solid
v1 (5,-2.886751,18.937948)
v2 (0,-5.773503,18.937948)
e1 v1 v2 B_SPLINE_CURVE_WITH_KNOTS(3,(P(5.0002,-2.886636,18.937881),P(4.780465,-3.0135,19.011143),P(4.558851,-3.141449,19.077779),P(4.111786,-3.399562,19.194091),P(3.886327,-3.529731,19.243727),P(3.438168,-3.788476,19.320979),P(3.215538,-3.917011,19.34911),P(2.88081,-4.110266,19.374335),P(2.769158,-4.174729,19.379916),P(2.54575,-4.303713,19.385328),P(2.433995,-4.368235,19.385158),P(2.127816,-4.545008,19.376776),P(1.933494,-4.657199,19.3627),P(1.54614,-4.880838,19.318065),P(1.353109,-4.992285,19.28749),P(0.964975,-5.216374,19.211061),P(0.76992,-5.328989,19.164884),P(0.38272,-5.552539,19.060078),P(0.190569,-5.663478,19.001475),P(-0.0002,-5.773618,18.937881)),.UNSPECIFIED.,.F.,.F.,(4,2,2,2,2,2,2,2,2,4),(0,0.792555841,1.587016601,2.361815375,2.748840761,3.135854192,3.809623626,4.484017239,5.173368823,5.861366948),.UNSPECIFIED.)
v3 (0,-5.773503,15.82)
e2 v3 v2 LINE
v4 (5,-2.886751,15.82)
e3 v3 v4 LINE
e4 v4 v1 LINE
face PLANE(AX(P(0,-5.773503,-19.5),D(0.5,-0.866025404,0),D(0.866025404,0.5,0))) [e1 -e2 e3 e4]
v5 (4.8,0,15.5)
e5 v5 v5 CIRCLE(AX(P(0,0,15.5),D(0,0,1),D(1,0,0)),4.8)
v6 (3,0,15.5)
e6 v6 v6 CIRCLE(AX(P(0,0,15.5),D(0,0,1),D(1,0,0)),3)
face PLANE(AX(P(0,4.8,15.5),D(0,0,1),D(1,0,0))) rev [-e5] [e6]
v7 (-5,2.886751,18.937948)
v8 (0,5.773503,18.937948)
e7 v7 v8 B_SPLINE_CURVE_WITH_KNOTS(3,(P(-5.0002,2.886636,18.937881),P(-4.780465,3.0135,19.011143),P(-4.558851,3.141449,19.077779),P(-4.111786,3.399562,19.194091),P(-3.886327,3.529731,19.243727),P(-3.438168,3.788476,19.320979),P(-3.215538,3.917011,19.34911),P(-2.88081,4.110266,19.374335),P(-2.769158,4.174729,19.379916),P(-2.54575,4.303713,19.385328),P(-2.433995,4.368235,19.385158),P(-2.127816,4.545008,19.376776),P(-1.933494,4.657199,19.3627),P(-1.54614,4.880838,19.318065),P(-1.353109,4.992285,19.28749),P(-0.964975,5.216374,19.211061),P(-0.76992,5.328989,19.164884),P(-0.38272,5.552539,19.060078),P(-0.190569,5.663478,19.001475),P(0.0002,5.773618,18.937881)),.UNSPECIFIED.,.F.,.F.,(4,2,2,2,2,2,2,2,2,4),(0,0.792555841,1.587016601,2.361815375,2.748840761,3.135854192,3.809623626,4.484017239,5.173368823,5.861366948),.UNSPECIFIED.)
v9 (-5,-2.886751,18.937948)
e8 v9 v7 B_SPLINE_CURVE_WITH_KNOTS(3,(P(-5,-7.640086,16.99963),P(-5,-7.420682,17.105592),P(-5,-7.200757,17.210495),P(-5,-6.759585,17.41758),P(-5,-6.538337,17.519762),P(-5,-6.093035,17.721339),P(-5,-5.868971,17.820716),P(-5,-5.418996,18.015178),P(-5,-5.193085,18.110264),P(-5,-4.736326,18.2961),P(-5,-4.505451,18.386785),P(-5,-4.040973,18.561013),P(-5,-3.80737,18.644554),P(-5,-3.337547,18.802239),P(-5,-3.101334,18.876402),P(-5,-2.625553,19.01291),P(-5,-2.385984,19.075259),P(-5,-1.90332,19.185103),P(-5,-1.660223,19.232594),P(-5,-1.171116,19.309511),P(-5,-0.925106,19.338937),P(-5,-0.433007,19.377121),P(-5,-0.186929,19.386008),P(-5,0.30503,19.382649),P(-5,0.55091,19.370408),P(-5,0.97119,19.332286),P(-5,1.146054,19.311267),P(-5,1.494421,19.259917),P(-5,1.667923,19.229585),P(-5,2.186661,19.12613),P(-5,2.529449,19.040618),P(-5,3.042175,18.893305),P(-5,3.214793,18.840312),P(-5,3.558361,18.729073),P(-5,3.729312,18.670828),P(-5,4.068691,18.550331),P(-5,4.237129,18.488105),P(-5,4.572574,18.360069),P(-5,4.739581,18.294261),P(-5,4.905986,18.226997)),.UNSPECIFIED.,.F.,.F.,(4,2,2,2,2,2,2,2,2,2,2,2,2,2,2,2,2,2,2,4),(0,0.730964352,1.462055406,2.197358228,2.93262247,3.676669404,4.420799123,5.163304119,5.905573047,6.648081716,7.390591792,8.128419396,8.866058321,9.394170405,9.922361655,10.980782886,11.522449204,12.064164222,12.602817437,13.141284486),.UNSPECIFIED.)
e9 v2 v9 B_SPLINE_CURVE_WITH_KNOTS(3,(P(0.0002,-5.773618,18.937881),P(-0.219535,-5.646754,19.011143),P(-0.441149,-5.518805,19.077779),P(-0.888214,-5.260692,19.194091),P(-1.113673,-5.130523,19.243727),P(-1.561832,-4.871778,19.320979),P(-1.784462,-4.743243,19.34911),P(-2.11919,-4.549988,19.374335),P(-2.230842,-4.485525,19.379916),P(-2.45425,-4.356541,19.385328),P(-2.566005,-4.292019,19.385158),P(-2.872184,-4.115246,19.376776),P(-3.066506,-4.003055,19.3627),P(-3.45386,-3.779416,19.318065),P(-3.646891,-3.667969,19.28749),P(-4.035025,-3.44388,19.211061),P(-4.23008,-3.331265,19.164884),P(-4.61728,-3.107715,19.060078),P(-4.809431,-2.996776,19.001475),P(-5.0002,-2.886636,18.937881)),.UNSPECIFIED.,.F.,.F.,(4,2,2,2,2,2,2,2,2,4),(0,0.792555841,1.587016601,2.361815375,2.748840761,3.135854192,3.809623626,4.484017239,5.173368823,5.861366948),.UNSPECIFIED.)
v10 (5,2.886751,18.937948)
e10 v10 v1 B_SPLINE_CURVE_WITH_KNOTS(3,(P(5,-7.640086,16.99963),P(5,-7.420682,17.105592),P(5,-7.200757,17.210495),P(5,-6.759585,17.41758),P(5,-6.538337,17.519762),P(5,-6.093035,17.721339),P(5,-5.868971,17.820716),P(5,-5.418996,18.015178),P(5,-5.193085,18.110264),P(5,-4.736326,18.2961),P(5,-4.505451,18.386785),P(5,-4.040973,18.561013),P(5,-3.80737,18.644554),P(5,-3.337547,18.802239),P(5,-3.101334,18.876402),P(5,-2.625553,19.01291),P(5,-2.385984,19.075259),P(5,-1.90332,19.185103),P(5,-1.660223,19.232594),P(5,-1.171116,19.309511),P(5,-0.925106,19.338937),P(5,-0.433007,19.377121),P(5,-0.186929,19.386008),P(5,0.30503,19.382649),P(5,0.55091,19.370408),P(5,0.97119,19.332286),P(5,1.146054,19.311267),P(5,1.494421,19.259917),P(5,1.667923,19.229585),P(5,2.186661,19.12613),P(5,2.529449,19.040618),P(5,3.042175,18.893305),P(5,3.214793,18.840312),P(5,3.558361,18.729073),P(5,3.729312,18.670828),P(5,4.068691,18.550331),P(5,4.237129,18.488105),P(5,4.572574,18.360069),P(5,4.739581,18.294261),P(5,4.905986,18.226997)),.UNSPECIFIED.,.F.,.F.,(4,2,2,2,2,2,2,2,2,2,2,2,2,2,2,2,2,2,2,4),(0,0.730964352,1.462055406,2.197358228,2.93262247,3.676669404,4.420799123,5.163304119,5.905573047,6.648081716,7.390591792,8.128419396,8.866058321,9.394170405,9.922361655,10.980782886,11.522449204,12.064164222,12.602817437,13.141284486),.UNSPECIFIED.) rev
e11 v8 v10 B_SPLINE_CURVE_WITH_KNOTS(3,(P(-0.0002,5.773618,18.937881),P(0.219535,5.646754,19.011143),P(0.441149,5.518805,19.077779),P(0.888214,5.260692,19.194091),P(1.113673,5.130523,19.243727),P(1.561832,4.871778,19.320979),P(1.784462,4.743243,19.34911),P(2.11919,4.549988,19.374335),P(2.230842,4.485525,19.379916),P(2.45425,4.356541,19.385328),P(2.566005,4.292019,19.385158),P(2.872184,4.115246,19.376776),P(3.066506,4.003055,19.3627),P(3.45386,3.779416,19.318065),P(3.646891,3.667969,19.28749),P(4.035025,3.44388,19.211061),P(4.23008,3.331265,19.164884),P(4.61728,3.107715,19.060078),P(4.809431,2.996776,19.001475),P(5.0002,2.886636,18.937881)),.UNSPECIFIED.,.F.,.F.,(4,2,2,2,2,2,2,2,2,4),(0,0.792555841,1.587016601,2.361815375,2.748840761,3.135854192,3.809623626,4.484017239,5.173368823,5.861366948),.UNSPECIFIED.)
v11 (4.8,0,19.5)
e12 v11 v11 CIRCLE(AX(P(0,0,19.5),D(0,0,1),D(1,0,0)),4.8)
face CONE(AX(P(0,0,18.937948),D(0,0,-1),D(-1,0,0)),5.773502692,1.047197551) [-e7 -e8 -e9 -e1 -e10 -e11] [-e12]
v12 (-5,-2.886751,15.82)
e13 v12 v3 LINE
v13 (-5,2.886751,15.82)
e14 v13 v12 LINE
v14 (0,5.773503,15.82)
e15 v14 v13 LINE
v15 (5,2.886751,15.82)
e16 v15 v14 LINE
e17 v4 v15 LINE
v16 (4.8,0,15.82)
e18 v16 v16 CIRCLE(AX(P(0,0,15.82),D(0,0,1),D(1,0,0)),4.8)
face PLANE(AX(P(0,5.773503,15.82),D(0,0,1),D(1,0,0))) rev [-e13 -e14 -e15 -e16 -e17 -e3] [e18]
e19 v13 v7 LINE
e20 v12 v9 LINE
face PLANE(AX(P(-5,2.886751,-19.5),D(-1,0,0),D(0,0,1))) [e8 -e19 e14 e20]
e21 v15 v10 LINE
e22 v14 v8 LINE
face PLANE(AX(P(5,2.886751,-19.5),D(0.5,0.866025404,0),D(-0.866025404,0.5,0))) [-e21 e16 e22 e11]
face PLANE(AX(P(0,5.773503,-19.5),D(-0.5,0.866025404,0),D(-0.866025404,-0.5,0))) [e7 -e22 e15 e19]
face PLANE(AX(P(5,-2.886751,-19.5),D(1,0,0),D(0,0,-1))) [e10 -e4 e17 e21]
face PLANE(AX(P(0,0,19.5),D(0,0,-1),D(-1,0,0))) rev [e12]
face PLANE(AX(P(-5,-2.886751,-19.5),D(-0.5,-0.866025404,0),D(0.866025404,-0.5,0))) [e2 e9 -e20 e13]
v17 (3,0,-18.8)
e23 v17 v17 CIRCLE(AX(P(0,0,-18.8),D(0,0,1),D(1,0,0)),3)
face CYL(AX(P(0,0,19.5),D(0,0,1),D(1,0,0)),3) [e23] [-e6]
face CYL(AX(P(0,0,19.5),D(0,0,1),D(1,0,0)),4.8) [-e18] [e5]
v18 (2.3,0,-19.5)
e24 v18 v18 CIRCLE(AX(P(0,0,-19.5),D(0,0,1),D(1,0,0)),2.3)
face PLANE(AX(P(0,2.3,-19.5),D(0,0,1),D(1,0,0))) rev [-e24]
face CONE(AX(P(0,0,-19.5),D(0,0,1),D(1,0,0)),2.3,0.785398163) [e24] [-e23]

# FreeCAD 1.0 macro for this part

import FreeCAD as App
import Part
import Sketcher
Q = App.Units.Quantity


def add_polygon(sketch, points):
    """Adds a closed chain of lines whose ends are joined by coincident constraints."""
    first, n = sketch.GeometryCount, len(points)
    for a, b in zip(points, points[1:] + points[:1]):
        sketch.addGeometry(Part.LineSegment(App.Vector(*a, 0), App.Vector(*b, 0)), False)
    for i in range(n):
        sketch.addConstraint(Sketcher.Constraint("Coincident", first + i, 2, first + (i + 1) % n, 1))

doc = App.newDocument("Part")
params = doc.addObject("Spreadsheet::Sheet", "Params")
for row, (alias, value) in enumerate([
    ("sketch1_height", "39 mm"),
    ("sketch1_width", "4.8 mm"),
    ("sketch1_width2", "2.3 mm"),
    ("sketch1_width3", "1.8 mm"),
    ("sketch1_height2", "34.3 mm"),
    ("revolution_angle", "360 deg"),
], start=1):
    params.set(f"A{row}", alias)
    params.set(f"B{row}", "=" + value)
    params.setAlias(f"B{row}", alias)

body = doc.addObject("PartDesign::Body", "Body")

# Sketch on YZ plane
sketch1 = body.newObject("Sketcher::SketchObject", "Sketch")
sketch1.AttachmentSupport = (doc.getObject("YZ_Plane"), [""])
sketch1.MapMode = "FlatFace"
add_polygon(sketch1, [(4.8, 19.5), (0, 19.5), (0, -19.5), (2.3, -19.5), (3, -18.8), (3, 15.5), (4.8, 15.5), (4.8, 15.82), (5.77, 15.82), (5.77, 18.94)])  # lines 0-9
sketch1.addConstraint(Sketcher.Constraint("Horizontal", 0))
sketch1.addConstraint(Sketcher.Constraint("Vertical", 1))
sketch1.addConstraint(Sketcher.Constraint("Horizontal", 2))
sketch1.addConstraint(Sketcher.Constraint("Vertical", 4))
sketch1.addConstraint(Sketcher.Constraint("Horizontal", 5))
sketch1.addConstraint(Sketcher.Constraint("Vertical", 6))
sketch1.addConstraint(Sketcher.Constraint("Horizontal", 7))
sketch1.addConstraint(Sketcher.Constraint("Vertical", 8))
sketch1.addConstraint(Sketcher.Constraint("Symmetric", 0, 2, 1, 2, -1, 1))
sketch1.addConstraint(Sketcher.Constraint("Vertical", 6, 2, 9, 2))
sketch1.addConstraint(Sketcher.Constraint("DistanceY", 1, 2, 1, 1, 39.0))
sketch1.addConstraint(Sketcher.Constraint("Angle", 3, Q("45 deg")))
sketch1.addConstraint(Sketcher.Constraint("Angle", 9, Q("150 deg")))
sketch1.addConstraint(Sketcher.Constraint("DistanceX", 0, 2, 0, 1, 4.8))
sketch1.addConstraint(Sketcher.Constraint("DistanceX", 2, 1, 2, 2, 2.3))
sketch1.addConstraint(Sketcher.Constraint("DistanceX", 5, 1, 5, 2, 1.8))
sketch1.addConstraint(Sketcher.Constraint("DistanceY", 4, 1, 4, 2, 34.3))
sketch1.addConstraint(Sketcher.Constraint("DistanceY", 6, 1, 6, 2, 0.32))
sketch1.addConstraint(Sketcher.Constraint("DistanceX", 7, 1, 7, 2, 0.973503))
sketch1.setExpression("Constraints[20]", "Params.sketch1_height")
sketch1.setExpression("Constraints[23]", "Params.sketch1_width")
sketch1.setExpression("Constraints[24]", "Params.sketch1_width2")
sketch1.setExpression("Constraints[25]", "Params.sketch1_width3")
sketch1.setExpression("Constraints[26]", "Params.sketch1_height2")
revolution = body.newObject("PartDesign::Revolution", "Revolution")
revolution.Profile = sketch1
revolution.ReferenceAxis = (sketch1, ["V_Axis"])
revolution.setExpression("Angle", "Params.revolution_angle")

# Sketch on XY plane
sketch2 = body.newObject("Sketcher::SketchObject", "Sketch001")
sketch2.AttachmentSupport = (doc.getObject("XY_Plane"), [""])
sketch2.MapMode = "FlatFace"
sketch2.AttachmentOffset = App.Placement(App.Vector(0, 0, 19.5), App.Rotation())
add_polygon(sketch2, [(-11, 11), (-11, -11), (11, -11), (11, 11)])  # lines 0-3
add_polygon(sketch2, [(0, 6), (5, 3), (5, -3), (0, -6), (-5, -3), (-5, 3)])  # lines 4-9
sketch2.addConstraint(Sketcher.Constraint("Vertical", 0))
sketch2.addConstraint(Sketcher.Constraint("Horizontal", 1))
sketch2.addConstraint(Sketcher.Constraint("Vertical", 2))
sketch2.addConstraint(Sketcher.Constraint("Horizontal", 3))
sketch2.addConstraint(Sketcher.Constraint("Vertical", 5))
sketch2.addConstraint(Sketcher.Constraint("Vertical", 8))
sketch2.addConstraint(Sketcher.Constraint("Symmetric", 0, 2, 2, 2, -1, 1))
sketch2.addConstraint(Sketcher.Constraint("Symmetric", 4, 2, 7, 2, -1, 1))
sketch2.addConstraint(Sketcher.Constraint("Symmetric", 6, 2, 9, 2, -1, 1))
sketch2.addConstraint(Sketcher.Constraint("PointOnObject", 6, 2, -2))
sketch2.addConstraint(Sketcher.Constraint("Parallel", 6, 9))
sketch2.addConstraint(Sketcher.Constraint("Horizontal", 5, 2, 7, 2))
sketch2.addConstraint(Sketcher.Constraint("Equal", 3, 0))
sketch2.addConstraint(Sketcher.Constraint("Angle", 4, Q("-30 deg")))
sketch2.addConstraint(Sketcher.Constraint("DistanceX", -1, 1, 4, 2, 5.0))
sketch2.addConstraint(Sketcher.Constraint("DistanceX", 1, 1, 1, 2, 22.004))
sketch2.addConstraint(Sketcher.Constraint("DistanceY", 5, 2, 5, 1, 5.773503))
pocket1 = body.newObject("PartDesign::Pocket", "Pocket")
pocket1.Profile = sketch2
pocket1.Type = "ThroughAll"

doc.recompute()
